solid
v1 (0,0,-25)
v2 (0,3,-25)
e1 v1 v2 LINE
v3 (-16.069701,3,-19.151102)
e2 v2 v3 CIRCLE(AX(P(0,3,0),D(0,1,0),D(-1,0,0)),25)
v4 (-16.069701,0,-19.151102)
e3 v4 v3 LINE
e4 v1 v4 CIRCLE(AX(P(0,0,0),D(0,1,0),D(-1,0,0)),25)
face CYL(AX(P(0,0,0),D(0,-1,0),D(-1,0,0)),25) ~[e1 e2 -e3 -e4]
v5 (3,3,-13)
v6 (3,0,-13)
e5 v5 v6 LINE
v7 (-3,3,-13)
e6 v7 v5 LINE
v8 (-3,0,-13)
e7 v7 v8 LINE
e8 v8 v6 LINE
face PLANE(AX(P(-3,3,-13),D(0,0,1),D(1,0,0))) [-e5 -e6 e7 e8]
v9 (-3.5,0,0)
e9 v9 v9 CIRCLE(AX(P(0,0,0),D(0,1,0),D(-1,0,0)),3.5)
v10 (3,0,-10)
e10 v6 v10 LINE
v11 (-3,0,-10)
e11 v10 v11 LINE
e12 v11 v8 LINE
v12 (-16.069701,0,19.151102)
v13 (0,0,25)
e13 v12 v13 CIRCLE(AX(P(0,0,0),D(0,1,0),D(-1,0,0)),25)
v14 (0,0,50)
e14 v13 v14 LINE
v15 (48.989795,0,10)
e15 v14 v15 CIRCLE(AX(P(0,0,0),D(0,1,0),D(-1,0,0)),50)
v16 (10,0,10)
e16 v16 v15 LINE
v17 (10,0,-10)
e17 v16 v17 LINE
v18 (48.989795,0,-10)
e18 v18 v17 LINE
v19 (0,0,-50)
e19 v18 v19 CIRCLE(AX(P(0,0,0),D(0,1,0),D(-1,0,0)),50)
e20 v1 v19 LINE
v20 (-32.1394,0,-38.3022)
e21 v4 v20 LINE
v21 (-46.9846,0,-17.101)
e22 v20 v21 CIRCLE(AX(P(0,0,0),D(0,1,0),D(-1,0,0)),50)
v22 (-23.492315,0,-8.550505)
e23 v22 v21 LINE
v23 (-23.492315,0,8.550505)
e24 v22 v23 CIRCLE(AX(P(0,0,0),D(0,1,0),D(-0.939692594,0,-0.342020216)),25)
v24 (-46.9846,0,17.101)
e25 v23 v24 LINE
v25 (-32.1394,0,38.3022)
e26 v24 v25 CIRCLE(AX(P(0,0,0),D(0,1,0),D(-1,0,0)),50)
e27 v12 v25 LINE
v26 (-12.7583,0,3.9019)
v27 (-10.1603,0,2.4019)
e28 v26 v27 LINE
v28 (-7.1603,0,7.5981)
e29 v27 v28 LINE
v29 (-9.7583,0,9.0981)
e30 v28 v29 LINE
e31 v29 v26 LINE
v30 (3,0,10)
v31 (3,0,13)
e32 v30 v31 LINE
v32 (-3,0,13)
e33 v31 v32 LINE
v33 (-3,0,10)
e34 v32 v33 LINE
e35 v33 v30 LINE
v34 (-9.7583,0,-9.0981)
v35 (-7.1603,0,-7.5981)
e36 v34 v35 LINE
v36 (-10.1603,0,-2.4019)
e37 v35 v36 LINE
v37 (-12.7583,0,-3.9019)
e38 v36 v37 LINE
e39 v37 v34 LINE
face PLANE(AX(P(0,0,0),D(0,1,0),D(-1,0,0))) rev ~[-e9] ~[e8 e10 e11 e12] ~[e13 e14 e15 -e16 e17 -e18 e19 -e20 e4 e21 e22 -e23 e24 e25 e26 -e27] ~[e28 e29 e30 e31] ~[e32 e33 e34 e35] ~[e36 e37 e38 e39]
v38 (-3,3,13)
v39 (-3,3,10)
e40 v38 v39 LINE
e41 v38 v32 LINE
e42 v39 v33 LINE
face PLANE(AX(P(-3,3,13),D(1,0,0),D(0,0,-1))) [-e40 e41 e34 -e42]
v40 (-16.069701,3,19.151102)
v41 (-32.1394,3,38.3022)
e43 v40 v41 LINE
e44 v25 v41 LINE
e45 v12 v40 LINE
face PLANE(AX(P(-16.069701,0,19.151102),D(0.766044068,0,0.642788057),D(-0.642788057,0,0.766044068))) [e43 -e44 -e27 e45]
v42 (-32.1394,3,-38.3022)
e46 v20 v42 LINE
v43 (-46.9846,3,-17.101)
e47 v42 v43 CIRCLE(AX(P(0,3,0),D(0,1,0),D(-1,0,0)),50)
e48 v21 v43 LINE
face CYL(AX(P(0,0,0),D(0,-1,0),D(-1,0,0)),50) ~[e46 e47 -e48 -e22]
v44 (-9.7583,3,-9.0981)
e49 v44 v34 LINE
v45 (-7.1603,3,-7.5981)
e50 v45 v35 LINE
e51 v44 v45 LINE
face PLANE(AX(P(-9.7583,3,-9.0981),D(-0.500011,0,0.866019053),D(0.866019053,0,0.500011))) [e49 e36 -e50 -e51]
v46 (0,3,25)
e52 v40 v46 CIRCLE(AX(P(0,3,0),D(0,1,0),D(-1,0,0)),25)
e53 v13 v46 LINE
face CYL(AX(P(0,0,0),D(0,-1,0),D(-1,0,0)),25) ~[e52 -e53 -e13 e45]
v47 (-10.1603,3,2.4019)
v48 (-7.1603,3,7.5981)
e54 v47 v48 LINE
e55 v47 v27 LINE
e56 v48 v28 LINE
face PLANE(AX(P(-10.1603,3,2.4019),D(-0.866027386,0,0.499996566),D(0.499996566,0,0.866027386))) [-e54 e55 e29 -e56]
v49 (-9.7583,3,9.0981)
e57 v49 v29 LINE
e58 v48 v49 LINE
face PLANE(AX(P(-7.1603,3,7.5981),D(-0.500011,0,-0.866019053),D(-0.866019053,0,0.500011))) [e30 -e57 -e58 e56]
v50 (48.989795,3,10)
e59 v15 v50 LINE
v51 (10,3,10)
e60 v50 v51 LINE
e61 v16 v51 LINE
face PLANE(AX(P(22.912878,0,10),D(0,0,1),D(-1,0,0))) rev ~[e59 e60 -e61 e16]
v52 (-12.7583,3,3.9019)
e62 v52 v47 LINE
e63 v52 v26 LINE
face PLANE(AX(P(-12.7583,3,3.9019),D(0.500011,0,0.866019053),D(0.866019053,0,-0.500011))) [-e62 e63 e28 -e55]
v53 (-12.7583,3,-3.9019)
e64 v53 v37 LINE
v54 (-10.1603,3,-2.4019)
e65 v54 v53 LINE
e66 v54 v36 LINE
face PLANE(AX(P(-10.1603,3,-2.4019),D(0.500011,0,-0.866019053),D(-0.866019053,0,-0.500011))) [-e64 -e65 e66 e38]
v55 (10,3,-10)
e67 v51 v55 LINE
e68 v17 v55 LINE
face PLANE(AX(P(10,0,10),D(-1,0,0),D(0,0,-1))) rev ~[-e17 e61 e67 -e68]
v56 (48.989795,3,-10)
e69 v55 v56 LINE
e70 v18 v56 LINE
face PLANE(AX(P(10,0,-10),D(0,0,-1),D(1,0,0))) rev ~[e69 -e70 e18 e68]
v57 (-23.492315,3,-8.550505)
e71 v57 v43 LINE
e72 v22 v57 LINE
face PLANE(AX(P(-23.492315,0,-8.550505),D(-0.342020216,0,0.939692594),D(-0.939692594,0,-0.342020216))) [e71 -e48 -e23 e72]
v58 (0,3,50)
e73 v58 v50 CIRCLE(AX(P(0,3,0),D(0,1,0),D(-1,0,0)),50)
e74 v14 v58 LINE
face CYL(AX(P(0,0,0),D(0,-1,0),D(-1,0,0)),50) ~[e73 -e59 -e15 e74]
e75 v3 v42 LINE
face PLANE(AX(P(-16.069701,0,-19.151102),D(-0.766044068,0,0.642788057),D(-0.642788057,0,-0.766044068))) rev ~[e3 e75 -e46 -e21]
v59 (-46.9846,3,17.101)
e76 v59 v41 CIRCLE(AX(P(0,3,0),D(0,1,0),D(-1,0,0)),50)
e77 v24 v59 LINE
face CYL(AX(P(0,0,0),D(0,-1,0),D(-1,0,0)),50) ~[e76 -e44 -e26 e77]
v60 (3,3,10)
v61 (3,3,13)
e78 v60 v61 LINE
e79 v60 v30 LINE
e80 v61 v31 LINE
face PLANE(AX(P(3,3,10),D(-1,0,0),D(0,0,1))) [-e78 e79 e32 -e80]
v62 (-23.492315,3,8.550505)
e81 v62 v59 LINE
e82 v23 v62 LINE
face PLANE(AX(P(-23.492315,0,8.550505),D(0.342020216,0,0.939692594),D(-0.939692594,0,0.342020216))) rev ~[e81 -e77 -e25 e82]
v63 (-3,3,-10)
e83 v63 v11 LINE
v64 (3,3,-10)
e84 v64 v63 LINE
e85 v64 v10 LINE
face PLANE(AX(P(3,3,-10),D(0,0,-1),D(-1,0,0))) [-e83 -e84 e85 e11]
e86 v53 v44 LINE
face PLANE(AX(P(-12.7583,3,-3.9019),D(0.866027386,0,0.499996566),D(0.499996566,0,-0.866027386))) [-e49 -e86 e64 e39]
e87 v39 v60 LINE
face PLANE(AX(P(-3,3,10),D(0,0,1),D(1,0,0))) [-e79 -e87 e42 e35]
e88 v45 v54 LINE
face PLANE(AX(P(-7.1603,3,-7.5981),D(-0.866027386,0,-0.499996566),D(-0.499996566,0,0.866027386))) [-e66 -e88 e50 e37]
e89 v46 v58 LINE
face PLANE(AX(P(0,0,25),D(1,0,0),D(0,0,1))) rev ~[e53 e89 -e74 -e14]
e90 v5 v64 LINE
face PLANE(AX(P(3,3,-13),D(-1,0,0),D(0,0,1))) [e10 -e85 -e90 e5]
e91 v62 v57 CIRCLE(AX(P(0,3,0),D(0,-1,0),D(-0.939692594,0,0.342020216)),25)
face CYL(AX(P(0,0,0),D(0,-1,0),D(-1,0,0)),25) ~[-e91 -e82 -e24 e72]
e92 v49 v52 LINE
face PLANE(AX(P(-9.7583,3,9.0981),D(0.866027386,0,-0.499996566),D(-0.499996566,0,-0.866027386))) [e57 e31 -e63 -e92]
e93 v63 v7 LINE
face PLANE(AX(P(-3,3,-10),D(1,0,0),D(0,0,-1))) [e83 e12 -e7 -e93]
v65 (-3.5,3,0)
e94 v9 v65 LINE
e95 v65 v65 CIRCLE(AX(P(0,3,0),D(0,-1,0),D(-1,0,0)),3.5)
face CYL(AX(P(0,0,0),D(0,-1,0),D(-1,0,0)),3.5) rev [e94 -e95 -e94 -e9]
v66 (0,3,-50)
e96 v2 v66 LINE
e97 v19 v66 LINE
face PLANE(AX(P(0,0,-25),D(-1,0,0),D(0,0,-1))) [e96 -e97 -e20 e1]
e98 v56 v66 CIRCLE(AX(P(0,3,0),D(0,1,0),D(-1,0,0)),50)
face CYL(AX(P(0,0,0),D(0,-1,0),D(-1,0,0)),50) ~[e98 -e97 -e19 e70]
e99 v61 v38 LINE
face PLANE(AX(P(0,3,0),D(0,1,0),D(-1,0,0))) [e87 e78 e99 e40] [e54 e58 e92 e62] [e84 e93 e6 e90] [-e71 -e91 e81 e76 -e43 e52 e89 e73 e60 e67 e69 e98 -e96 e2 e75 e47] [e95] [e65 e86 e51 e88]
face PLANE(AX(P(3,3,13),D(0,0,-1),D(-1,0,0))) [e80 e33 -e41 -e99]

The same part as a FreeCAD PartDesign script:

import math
import FreeCAD as App
import Part
import Sketcher

V = App.Vector
Q = App.Units.Quantity


def add_polygon(sketch, points):
    """Adds a closed chain of lines whose ends are joined by coincident constraints."""
    first, n = sketch.GeometryCount, len(points)
    for a, b in zip(points, points[1:] + points[:1]):
        sketch.addGeometry(Part.LineSegment(App.Vector(*a, 0), App.Vector(*b, 0)), False)
    for i in range(n):
        sketch.addConstraint(Sketcher.Constraint("Coincident", first + i, 2, first + (i + 1) % n, 1))

doc = App.newDocument("Part")
body = doc.addObject("PartDesign::Body", "Body")

# Sketch on XZ plane
sketch1 = doc.addObject("Sketcher::SketchObject", "Sketch")
body.addObject(sketch1)
sketch1.AttachmentSupport = (doc.XZ_Plane, [""])
sketch1.MapMode = "FlatFace"
sketch1.addGeometry(Part.LineSegment(V(-23.5, 8.6, 0), V(-47, 17.1, 0)), False)
sketch1.addGeometry(Part.ArcOfCircle(Part.Circle(V(0, 0, 0), V(0, 0, 1), 50), math.radians(130), math.radians(160)), False)
sketch1.addGeometry(Part.LineSegment(V(-32.1, 38.3, 0), V(-16.1, 19.2, 0)), False)
sketch1.addGeometry(Part.ArcOfCircle(Part.Circle(V(0, 0, 0), V(0, 0, 1), 25), math.radians(90), math.radians(130)), False)
sketch1.addGeometry(Part.LineSegment(V(0, 25, 0), V(0, 50, 0)), False)
sketch1.addGeometry(Part.ArcOfCircle(Part.Circle(V(0, 0, 0), V(0, 0, 1), 50), math.radians(12), math.radians(90)), False)
sketch1.addGeometry(Part.LineSegment(V(49, 10, 0), V(10, 10, 0)), False)
sketch1.addGeometry(Part.LineSegment(V(10, 10, 0), V(10, -10, 0)), False)
sketch1.addGeometry(Part.LineSegment(V(10, -10, 0), V(49, -10, 0)), False)
sketch1.addGeometry(Part.ArcOfCircle(Part.Circle(V(0, 0, 0), V(0, 0, 1), 50), math.radians(-90), math.radians(-12)), False)
sketch1.addGeometry(Part.LineSegment(V(0, -50, 0), V(0, -25, 0)), False)
sketch1.addGeometry(Part.ArcOfCircle(Part.Circle(V(0, 0, 0), V(0, 0, 1), 25), math.radians(-130), math.radians(-90)), False)
sketch1.addGeometry(Part.LineSegment(V(-16.1, -19.2, 0), V(-32.1, -38.3, 0)), False)
sketch1.addGeometry(Part.ArcOfCircle(Part.Circle(V(0, 0, 0), V(0, 0, 1), 50), math.radians(-160), math.radians(-130)), False)
sketch1.addGeometry(Part.LineSegment(V(-47, -17.1, 0), V(-23.5, -8.6, 0)), False)
sketch1.addGeometry(Part.ArcOfCircle(Part.Circle(V(0, 0, 0), V(0, 0, 1), 25), math.radians(160), math.radians(200)), False)
sketch1.addGeometry(Part.Circle(V(0, 0, 0), V(0, 0, 1), 3.5), False)
sketch1.addConstraint(Sketcher.Constraint("Coincident", 0, 2, 1, 2))
sketch1.addConstraint(Sketcher.Constraint("Coincident", 1, 1, 2, 1))
sketch1.addConstraint(Sketcher.Constraint("Coincident", 2, 2, 3, 2))
sketch1.addConstraint(Sketcher.Constraint("Coincident", 3, 1, 4, 1))
sketch1.addConstraint(Sketcher.Constraint("Coincident", 4, 2, 5, 2))
sketch1.addConstraint(Sketcher.Constraint("Coincident", 5, 1, 6, 1))
sketch1.addConstraint(Sketcher.Constraint("Coincident", 6, 2, 7, 1))
sketch1.addConstraint(Sketcher.Constraint("Coincident", 7, 2, 8, 1))
sketch1.addConstraint(Sketcher.Constraint("Coincident", 8, 2, 9, 2))
sketch1.addConstraint(Sketcher.Constraint("Coincident", 9, 1, 10, 1))
sketch1.addConstraint(Sketcher.Constraint("Coincident", 10, 2, 11, 2))
sketch1.addConstraint(Sketcher.Constraint("Coincident", 11, 1, 12, 1))
sketch1.addConstraint(Sketcher.Constraint("Coincident", 12, 2, 13, 2))
sketch1.addConstraint(Sketcher.Constraint("Coincident", 13, 1, 14, 1))
sketch1.addConstraint(Sketcher.Constraint("Coincident", 14, 2, 15, 2))
sketch1.addConstraint(Sketcher.Constraint("Coincident", 15, 1, 0, 1))
sketch1.addConstraint(Sketcher.Constraint("Vertical", 4))
sketch1.addConstraint(Sketcher.Constraint("Horizontal", 6))
sketch1.addConstraint(Sketcher.Constraint("Vertical", 7))
sketch1.addConstraint(Sketcher.Constraint("Horizontal", 8))
sketch1.addConstraint(Sketcher.Constraint("Vertical", 10))
sketch1.addConstraint(Sketcher.Constraint("Coincident", 1, 3, -1, 1))
sketch1.addConstraint(Sketcher.Constraint("Coincident", 3, 3, -1, 1))
sketch1.addConstraint(Sketcher.Constraint("Coincident", 5, 3, -1, 1))
sketch1.addConstraint(Sketcher.Constraint("Coincident", 9, 3, -1, 1))
sketch1.addConstraint(Sketcher.Constraint("Coincident", 11, 3, -1, 1))
sketch1.addConstraint(Sketcher.Constraint("Coincident", 13, 3, -1, 1))
sketch1.addConstraint(Sketcher.Constraint("Coincident", 15, 3, -1, 1))
sketch1.addConstraint(Sketcher.Constraint("Coincident", 16, 3, -1, 1))
sketch1.addConstraint(Sketcher.Constraint("Equal", 1, 5))
sketch1.addConstraint(Sketcher.Constraint("Equal", 5, 9))
sketch1.addConstraint(Sketcher.Constraint("Equal", 3, 11))
sketch1.addConstraint(Sketcher.Constraint("Equal", 9, 13))
sketch1.addConstraint(Sketcher.Constraint("Equal", 11, 15))
sketch1.addConstraint(Sketcher.Constraint("PointOnObject", 3, 1, -2))
sketch1.addConstraint(Sketcher.Constraint("PointOnObject", 9, 1, -2))
sketch1.addConstraint(Sketcher.Constraint("Vertical", 5, 1, 8, 2))
sketch1.addConstraint(Sketcher.Constraint("Vertical", 2, 2, 11, 1))
sketch1.addConstraint(Sketcher.Constraint("Vertical", 1, 1, 12, 2))
sketch1.addConstraint(Sketcher.Constraint("Vertical", 0, 2, 13, 1))
sketch1.addConstraint(Sketcher.Constraint("Vertical", 14, 2, 15, 1))
sketch1.addConstraint(Sketcher.Constraint("Diameter", 16, 7.0))
sketch1.addConstraint(Sketcher.Constraint("Radius", 1, 50.0))
sketch1.addConstraint(Sketcher.Constraint("Radius", 3, 25.0))
sketch1.addConstraint(Sketcher.Constraint("DistanceY", 7, 2, 7, 1, 20.0))
sketch1.addConstraint(Sketcher.Constraint("Angle", 2, Q("-50 deg")))
sketch1.addConstraint(Sketcher.Constraint("Angle", 14, Q("20 deg")))
sketch1.addConstraint(Sketcher.Constraint("DistanceX", -1, 1, 6, 2, 10.0))
sketch1.addConstraint(Sketcher.Constraint("DistanceY", 11, 1, 13, 1, 2.05))
sketch1.addConstraint(Sketcher.Constraint("DistanceY", -1, 1, 0, 2, 17.101))
pad1 = doc.addObject("PartDesign::Pad", "Pad")
body.addObject(pad1)
pad1.Profile = sketch1
pad1.Length = 3
pad1.Reversed = True

# Sketch on XZ plane
sketch2 = doc.addObject("Sketcher::SketchObject", "Sketch001")
body.addObject(sketch2)
sketch2.AttachmentSupport = (doc.XZ_Plane, [""])
sketch2.MapMode = "FlatFace"
sketch2.AttachmentOffset = App.Placement(V(0, 0, -3), App.Rotation())
add_polygon(sketch2, [(3, -13), (-3, -13), (-3, -10), (3, -10)])  # lines 0-3
add_polygon(sketch2, [(-9.8, -9.1), (-12.8, -3.9), (-10.2, -2.4), (-7.2, -7.6)])  # lines 4-7
add_polygon(sketch2, [(-12.8, 3.9), (-9.8, 9.1), (-7.2, 7.6), (-10.2, 2.4)])  # lines 8-11
add_polygon(sketch2, [(-3, 13), (3, 13), (3, 10), (-3, 10)])  # lines 12-15
sketch2.addConstraint(Sketcher.Constraint("Horizontal", 0))
sketch2.addConstraint(Sketcher.Constraint("Vertical", 1))
sketch2.addConstraint(Sketcher.Constraint("Horizontal", 2))
sketch2.addConstraint(Sketcher.Constraint("Vertical", 3))
sketch2.addConstraint(Sketcher.Constraint("Horizontal", 12))
sketch2.addConstraint(Sketcher.Constraint("Vertical", 13))
sketch2.addConstraint(Sketcher.Constraint("Horizontal", 14))
sketch2.addConstraint(Sketcher.Constraint("Vertical", 15))
sketch2.addConstraint(Sketcher.Constraint("Symmetric", 0, 2, 12, 2, -1, 1))
sketch2.addConstraint(Sketcher.Constraint("Symmetric", 2, 2, 14, 2, -1, 1))
sketch2.addConstraint(Sketcher.Constraint("Symmetric", 7, 2, 8, 2, -1))
sketch2.addConstraint(Sketcher.Constraint("Symmetric", 6, 2, 9, 2, -1))
sketch2.addConstraint(Sketcher.Constraint("Symmetric", 5, 2, 10, 2, -1))
sketch2.addConstraint(Sketcher.Constraint("Symmetric", 4, 2, 11, 2, -1))
sketch2.addConstraint(Sketcher.Constraint("Perpendicular", 4, 5))
sketch2.addConstraint(Sketcher.Constraint("Perpendicular", 5, 6))
sketch2.addConstraint(Sketcher.Constraint("Perpendicular", 6, 7))
sketch2.addConstraint(Sketcher.Constraint("Vertical", 3, 2, 12, 2))
sketch2.addConstraint(Sketcher.Constraint("DistanceX", 0, 2, 0, 1, 6.0))
sketch2.addConstraint(Sketcher.Constraint("DistanceY", 1, 1, 1, 2, 3.0))
sketch2.addConstraint(Sketcher.Constraint("Distance", 4, 6.0))
sketch2.addConstraint(Sketcher.Constraint("Distance", 5, 3.0))
sketch2.addConstraint(Sketcher.Constraint("DistanceY", 1, 2, -1, 1, 10.0))
sketch2.addConstraint(Sketcher.Constraint("DistanceX", 5, 2, 6, 2, 3.0))
sketch2.addConstraint(Sketcher.Constraint("DistanceY", 5, 2, 9, 2, 10.0))
sketch2.addConstraint(Sketcher.Constraint("DistanceX", 4, 2, -1, 1, 12.7583))
pocket1 = doc.addObject("PartDesign::Pocket", "Pocket")
body.addObject(pocket1)
pocket1.Profile = sketch2
pocket1.Type = "ThroughAll"
pocket1.Reversed = True

doc.recompute()
